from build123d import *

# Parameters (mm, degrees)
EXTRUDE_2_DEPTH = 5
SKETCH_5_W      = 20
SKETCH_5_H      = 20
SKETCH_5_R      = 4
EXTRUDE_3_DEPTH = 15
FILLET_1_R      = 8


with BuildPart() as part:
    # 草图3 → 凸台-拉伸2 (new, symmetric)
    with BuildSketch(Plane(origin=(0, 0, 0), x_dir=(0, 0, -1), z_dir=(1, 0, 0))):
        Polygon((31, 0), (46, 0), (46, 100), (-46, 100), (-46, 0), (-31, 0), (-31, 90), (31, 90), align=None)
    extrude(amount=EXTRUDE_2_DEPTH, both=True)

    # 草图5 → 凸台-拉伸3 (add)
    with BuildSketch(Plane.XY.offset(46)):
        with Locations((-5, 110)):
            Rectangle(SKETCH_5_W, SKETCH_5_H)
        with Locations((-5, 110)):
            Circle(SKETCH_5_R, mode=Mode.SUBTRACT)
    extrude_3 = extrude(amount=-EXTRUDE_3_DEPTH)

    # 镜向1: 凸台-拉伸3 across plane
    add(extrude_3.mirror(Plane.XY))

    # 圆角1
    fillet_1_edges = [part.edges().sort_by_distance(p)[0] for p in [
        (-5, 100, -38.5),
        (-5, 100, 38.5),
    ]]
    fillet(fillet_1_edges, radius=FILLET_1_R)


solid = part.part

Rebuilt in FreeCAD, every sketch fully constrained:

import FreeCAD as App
import Part
import Sketcher
from FreeCAD import Vector


def edges_at(feature, points):
    """Names of the edges that pass closest to the given points."""
    edges = feature.Shape.Edges
    near = lambda p: min(range(len(edges)), key=lambda i: edges[i].distToShape(Part.Vertex(*p))[0])
    return sorted({f"Edge{near(p) + 1}" for p in points})


def add_polygon(sketch, points):
    """Adds a closed chain of lines whose ends are joined by coincident constraints."""
    first, n = sketch.GeometryCount, len(points)
    for a, b in zip(points, points[1:] + points[:1]):
        sketch.addGeometry(Part.LineSegment(App.Vector(*a, 0), App.Vector(*b, 0)), False)
    for i in range(n):
        sketch.addConstraint(Sketcher.Constraint("Coincident", first + i, 2, first + (i + 1) % n, 1))

doc = App.newDocument("Part")
body = doc.addObject("PartDesign::Body", "Body")

sketch1 = body.newObject("Sketcher::SketchObject", "Sketch")
sketch1.AttachmentSupport = (doc.getObject("YZ_Plane"), [""])
sketch1.MapMode = "FlatFace"
add_polygon(sketch1, [(0, -31), (0, -46), (100, -46), (100, 46), (0, 46), (0, 31), (90, 31), (90, -31)])
sketch1.addConstraint([
    Sketcher.Constraint("Vertical", 0),
    Sketcher.Constraint("Horizontal", 1),
    Sketcher.Constraint("Vertical", 2),
    Sketcher.Constraint("Horizontal", 3),
    Sketcher.Constraint("Vertical", 4),
    Sketcher.Constraint("Horizontal", 5),
    Sketcher.Constraint("Vertical", 6),
    Sketcher.Constraint("Horizontal", 7),
    Sketcher.Constraint("Symmetric", 0, 2, 3, 2, -1, 1),
    Sketcher.Constraint("Symmetric", 4, 2, 7, 2, -1),
    Sketcher.Constraint("DistanceX", 1, 1, 1, 2, 100.0),
    Sketcher.Constraint("DistanceX", 5, 1, 5, 2, 90.0),
    Sketcher.Constraint("DistanceY", 0, 2, 0, 1, 15.0),
    Sketcher.Constraint("DistanceY", 2, 1, 2, 2, 92.0),
])
pad1 = body.newObject("PartDesign::Pad", "Pad")
pad1.Profile = sketch1
pad1.Length = 10
pad1.Midplane = True

sketch2 = body.newObject("Sketcher::SketchObject", "Sketch001")
sketch2.AttachmentSupport = (doc.getObject("XY_Plane"), [""])
sketch2.MapMode = "FlatFace"
sketch2.AttachmentOffset = App.Placement(Vector(0, 0, 46), App.Rotation())
add_polygon(sketch2, [(-15, 120), (-15, 100), (5, 100), (5, 120)])
sketch2.addGeometry(Part.Circle(Vector(-5, 110, 0), Vector(0, 0, 1), 4), False)
sketch2.addConstraint([
    Sketcher.Constraint("Vertical", 0),
    Sketcher.Constraint("Horizontal", 1),
    Sketcher.Constraint("Vertical", 2),
    Sketcher.Constraint("Horizontal", 3),
    Sketcher.Constraint("Equal", 3, 0),
    Sketcher.Constraint("Diameter", 4, 8.0),
    Sketcher.Constraint("DistanceX", 1, 1, 1, 2, 20.0),
    Sketcher.Constraint("DistanceX", 4, 3, -1, 1, 5.0),
    Sketcher.Constraint("DistanceY", -1, 1, 4, 3, 110.0),
    Sketcher.Constraint("DistanceX", 0, 2, -1, 1, 15.0),
    Sketcher.Constraint("DistanceY", -1, 1, 0, 2, 100.0),
])
pad2 = body.newObject("PartDesign::Pad", "Pad001")
pad2.Profile = sketch2
pad2.Length = 15
pad2.Reversed = True
doc.recompute()

mirrored = body.newObject("PartDesign::Mirrored", "Mirrored")
mirrored.Originals = [pad2]
mirrored.MirrorPlane = (doc.getObject("XY_Plane"), [""])
body.Tip = mirrored
doc.recompute()

fillet = body.newObject("PartDesign::Fillet", "Fillet")
fillet.Base = (mirrored, edges_at(mirrored, [(-5, 100, -38.5), (-5, 100, 38.5)]))
fillet.Radius = 8

doc.recompute()
